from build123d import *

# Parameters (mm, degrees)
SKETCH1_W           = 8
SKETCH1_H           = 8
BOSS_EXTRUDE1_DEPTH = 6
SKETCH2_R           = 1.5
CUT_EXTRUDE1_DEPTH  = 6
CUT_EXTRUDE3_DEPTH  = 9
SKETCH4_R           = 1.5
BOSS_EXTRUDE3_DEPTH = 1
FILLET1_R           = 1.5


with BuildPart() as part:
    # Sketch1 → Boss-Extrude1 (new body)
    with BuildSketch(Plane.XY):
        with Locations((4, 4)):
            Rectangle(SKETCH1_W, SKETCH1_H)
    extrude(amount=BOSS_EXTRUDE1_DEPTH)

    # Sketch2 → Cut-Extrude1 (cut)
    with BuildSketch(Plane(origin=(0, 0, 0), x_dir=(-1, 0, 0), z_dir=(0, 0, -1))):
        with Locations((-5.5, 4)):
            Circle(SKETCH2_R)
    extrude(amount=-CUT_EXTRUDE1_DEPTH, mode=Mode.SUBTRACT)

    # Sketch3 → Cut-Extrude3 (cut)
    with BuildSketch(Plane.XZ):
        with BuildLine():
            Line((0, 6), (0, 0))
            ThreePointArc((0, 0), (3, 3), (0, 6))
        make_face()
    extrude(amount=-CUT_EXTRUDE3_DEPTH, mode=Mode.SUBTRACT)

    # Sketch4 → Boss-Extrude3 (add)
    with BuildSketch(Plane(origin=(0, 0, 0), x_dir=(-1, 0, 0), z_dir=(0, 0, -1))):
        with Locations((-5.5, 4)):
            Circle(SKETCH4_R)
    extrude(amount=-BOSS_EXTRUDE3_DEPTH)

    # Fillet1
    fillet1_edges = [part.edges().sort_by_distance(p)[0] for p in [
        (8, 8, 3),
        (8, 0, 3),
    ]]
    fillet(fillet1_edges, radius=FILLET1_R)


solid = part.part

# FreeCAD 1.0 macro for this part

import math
import FreeCAD as App
import Part
import Sketcher


def edges_at(feature, points):
    """Names of the edges that pass closest to the given points."""
    edges = feature.Shape.Edges
    near = lambda p: min(range(len(edges)), key=lambda i: edges[i].distToShape(Part.Vertex(*p))[0])
    return sorted({f"Edge{near(p) + 1}" for p in points})

doc = App.newDocument("Part")
body = doc.addObject("PartDesign::Body", "Body")

# Sketch on XY plane
sketch1 = body.newObject("Sketcher::SketchObject", "Sketch")
sketch1.AttachmentSupport = (doc.getObject("XY_Plane"), [""])
sketch1.MapMode = "FlatFace"
sketch1.addGeometry([
    Part.LineSegment(App.Vector(0, 8, 0), App.Vector(0, 0, 0)),
    Part.LineSegment(App.Vector(0, 0, 0), App.Vector(8, 0, 0)),
    Part.LineSegment(App.Vector(8, 0, 0), App.Vector(8, 8, 0)),
    Part.LineSegment(App.Vector(8, 8, 0), App.Vector(0, 8, 0)),
], False)
sketch1.addConstraint([
    Sketcher.Constraint("Coincident", 0, 2, 1, 1),
    Sketcher.Constraint("Coincident", 1, 2, 2, 1),
    Sketcher.Constraint("Coincident", 2, 2, 3, 1),
    Sketcher.Constraint("Coincident", 3, 2, 0, 1),
    Sketcher.Constraint("Vertical", 0),
    Sketcher.Constraint("Horizontal", 1),
    Sketcher.Constraint("Vertical", 2),
    Sketcher.Constraint("Horizontal", 3),
    Sketcher.Constraint("Coincident", 0, 2, -1, 1),
    Sketcher.Constraint("Equal", 3, 0),
    Sketcher.Constraint("DistanceX", 1, 1, 1, 2, 8.0),
])
pad1 = body.newObject("PartDesign::Pad", "Pad")
pad1.Profile = sketch1
pad1.Length = 6

# Sketch on XY plane
sketch2 = body.newObject("Sketcher::SketchObject", "Sketch001")
sketch2.AttachmentSupport = (doc.getObject("XY_Plane"), [""])
sketch2.MapMode = "FlatFace"
sketch2.addGeometry(Part.Circle(App.Vector(5.5, 4, 0), App.Vector(0, 0, 1), 1.5), False)
sketch2.addConstraint([
    Sketcher.Constraint("Diameter", 0, 3.0),
    Sketcher.Constraint("DistanceY", -1, 1, 0, 3, 4.0),
    Sketcher.Constraint("DistanceX", -1, 1, 0, 3, 5.5),
])
pocket1 = body.newObject("PartDesign::Pocket", "Pocket")
pocket1.Profile = sketch2
pocket1.Length = 6
pocket1.Reversed = True

# Sketch on XZ plane
sketch3 = body.newObject("Sketcher::SketchObject", "Sketch002")
sketch3.AttachmentSupport = (doc.getObject("XZ_Plane"), [""])
sketch3.MapMode = "FlatFace"
sketch3.addGeometry([
    Part.LineSegment(App.Vector(0, 6, 0), App.Vector(0, 0, 0)),
    Part.ArcOfCircle(Part.Circle(App.Vector(0, 3, 0), App.Vector(0, 0, 1), 3), math.radians(-90), math.radians(90)),
], False)
sketch3.addConstraint([
    Sketcher.Constraint("Coincident", 0, 1, 1, 2),
    Sketcher.Constraint("Coincident", 1, 1, 0, 2),
    Sketcher.Constraint("Vertical", 0),
    Sketcher.Constraint("Coincident", 1, 1, -1, 1),
    Sketcher.Constraint("PointOnObject", 1, 3, -2),
    Sketcher.Constraint("Radius", 1, 3.0),
])
pocket2 = body.newObject("PartDesign::Pocket", "Pocket001")
pocket2.Profile = sketch3
pocket2.Length = 9

# Sketch on XY plane
sketch4 = body.newObject("Sketcher::SketchObject", "Sketch003")
sketch4.AttachmentSupport = (doc.getObject("XY_Plane"), [""])
sketch4.MapMode = "FlatFace"
sketch4.addGeometry(Part.Circle(App.Vector(5.5, 4, 0), App.Vector(0, 0, 1), 1.5), False)
sketch4.addConstraint([
    Sketcher.Constraint("Diameter", 0, 3.0),
    Sketcher.Constraint("DistanceY", -1, 1, 0, 3, 4.0),
    Sketcher.Constraint("DistanceX", -1, 1, 0, 3, 5.5),
])
pad2 = body.newObject("PartDesign::Pad", "Pad001")
pad2.Profile = sketch4
pad2.Length = 1
doc.recompute()

fillet = body.newObject("PartDesign::Fillet", "Fillet")
fillet.Base = (pad2, edges_at(pad2, [(8, 8, 3), (8, 0, 3)]))
fillet.Radius = 1.5

doc.recompute()
